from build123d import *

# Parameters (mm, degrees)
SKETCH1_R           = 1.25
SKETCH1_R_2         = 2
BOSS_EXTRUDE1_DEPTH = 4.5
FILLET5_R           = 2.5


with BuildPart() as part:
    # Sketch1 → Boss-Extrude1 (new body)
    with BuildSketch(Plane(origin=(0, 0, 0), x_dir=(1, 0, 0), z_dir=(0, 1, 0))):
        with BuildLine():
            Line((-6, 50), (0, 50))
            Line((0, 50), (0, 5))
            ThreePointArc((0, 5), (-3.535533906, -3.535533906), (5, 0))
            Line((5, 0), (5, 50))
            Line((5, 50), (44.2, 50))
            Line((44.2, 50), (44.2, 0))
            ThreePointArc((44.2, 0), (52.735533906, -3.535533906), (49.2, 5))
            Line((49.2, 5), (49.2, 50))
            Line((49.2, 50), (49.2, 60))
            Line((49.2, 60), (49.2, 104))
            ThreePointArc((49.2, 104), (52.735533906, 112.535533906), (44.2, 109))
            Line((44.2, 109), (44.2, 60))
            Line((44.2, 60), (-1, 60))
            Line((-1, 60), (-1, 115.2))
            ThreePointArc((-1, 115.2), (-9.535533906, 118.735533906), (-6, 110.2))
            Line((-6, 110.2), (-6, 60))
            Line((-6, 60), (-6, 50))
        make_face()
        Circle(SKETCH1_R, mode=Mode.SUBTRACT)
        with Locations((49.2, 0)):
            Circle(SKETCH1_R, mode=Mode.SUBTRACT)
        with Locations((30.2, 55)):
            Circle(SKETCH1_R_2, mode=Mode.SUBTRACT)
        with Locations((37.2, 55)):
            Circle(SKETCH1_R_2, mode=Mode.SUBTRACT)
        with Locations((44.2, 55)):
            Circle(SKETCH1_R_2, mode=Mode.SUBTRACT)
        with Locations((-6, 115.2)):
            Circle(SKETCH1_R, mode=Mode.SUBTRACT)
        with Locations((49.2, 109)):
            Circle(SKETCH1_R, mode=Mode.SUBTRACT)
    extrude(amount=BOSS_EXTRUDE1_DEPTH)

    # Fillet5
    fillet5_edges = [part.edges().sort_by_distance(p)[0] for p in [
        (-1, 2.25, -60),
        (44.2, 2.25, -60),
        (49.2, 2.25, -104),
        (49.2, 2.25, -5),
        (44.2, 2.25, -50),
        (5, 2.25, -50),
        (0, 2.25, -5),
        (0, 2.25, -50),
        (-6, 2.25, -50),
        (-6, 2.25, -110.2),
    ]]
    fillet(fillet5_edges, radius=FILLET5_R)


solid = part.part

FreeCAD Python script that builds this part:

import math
import FreeCAD as App
import Part
import Sketcher
Q = App.Units.Quantity


def edges_at(feature, points):
    """Names of the edges that pass closest to the given points."""
    edges = feature.Shape.Edges
    near = lambda p: min(range(len(edges)), key=lambda i: edges[i].distToShape(Part.Vertex(*p))[0])
    return sorted({f"Edge{near(p) + 1}" for p in points})

doc = App.newDocument("Part")
body = doc.addObject("PartDesign::Body", "Body")

# Sketch on XZ plane
sketch1 = body.newObject("Sketcher::SketchObject", "Sketch")
sketch1.AttachmentSupport = (doc.getObject("XZ_Plane"), [""])
sketch1.MapMode = "FlatFace"
sketch1.addGeometry(Part.LineSegment(App.Vector(-6, -50, 0), App.Vector(0, -50, 0)), False)
sketch1.addGeometry(Part.LineSegment(App.Vector(0, -50, 0), App.Vector(0, -5, 0)), False)
sketch1.addGeometry(Part.ArcOfCircle(Part.Circle(App.Vector(0, 0, 0), App.Vector(0, 0, 1), 5), math.radians(0), math.radians(270)), False)
sketch1.addGeometry(Part.LineSegment(App.Vector(5, 0, 0), App.Vector(5, -50, 0)), False)
sketch1.addGeometry(Part.LineSegment(App.Vector(5, -50, 0), App.Vector(44.2, -50, 0)), False)
sketch1.addGeometry(Part.LineSegment(App.Vector(44.2, -50, 0), App.Vector(44.2, 0, 0)), False)
sketch1.addGeometry(Part.ArcOfCircle(Part.Circle(App.Vector(49.2, 0, 0), App.Vector(0, 0, 1), 5), math.radians(-90), math.radians(180)), False)
sketch1.addGeometry(Part.LineSegment(App.Vector(49.2, -5, 0), App.Vector(49.2, -104, 0)), False)
sketch1.addGeometry(Part.ArcOfCircle(Part.Circle(App.Vector(49.2, -109, 0), App.Vector(0, 0, 1), 5), math.radians(180), math.radians(450)), False)
sketch1.addGeometry(Part.LineSegment(App.Vector(44.2, -109, 0), App.Vector(44.2, -60, 0)), False)
sketch1.addGeometry(Part.LineSegment(App.Vector(44.2, -60, 0), App.Vector(-1, -60, 0)), False)
sketch1.addGeometry(Part.LineSegment(App.Vector(-1, -60, 0), App.Vector(-1, -115.2, 0)), False)
sketch1.addGeometry(Part.ArcOfCircle(Part.Circle(App.Vector(-6, -115.2, 0), App.Vector(0, 0, 1), 5), math.radians(90), math.radians(360)), False)
sketch1.addGeometry(Part.LineSegment(App.Vector(-6, -110.2, 0), App.Vector(-6, -50, 0)), False)
sketch1.addGeometry(Part.Circle(App.Vector(0, 0, 0), App.Vector(0, 0, 1), 1.2), False)
sketch1.addGeometry(Part.Circle(App.Vector(49.2, 0, 0), App.Vector(0, 0, 1), 1.2), False)
sketch1.addGeometry(Part.Circle(App.Vector(30.2, -55, 0), App.Vector(0, 0, 1), 2), False)
sketch1.addGeometry(Part.Circle(App.Vector(37.2, -55, 0), App.Vector(0, 0, 1), 2), False)
sketch1.addGeometry(Part.Circle(App.Vector(44.2, -55, 0), App.Vector(0, 0, 1), 2), False)
sketch1.addGeometry(Part.Circle(App.Vector(-6, -115.2, 0), App.Vector(0, 0, 1), 1.2), False)
sketch1.addGeometry(Part.Circle(App.Vector(49.2, -109, 0), App.Vector(0, 0, 1), 1.2), False)
sketch1.addConstraint(Sketcher.Constraint("Coincident", 0, 2, 1, 1))
sketch1.addConstraint(Sketcher.Constraint("Coincident", 1, 2, 2, 2))
sketch1.addConstraint(Sketcher.Constraint("Tangent", 2, 1, 3, 1))
sketch1.addConstraint(Sketcher.Constraint("Coincident", 3, 2, 4, 1))
sketch1.addConstraint(Sketcher.Constraint("Coincident", 4, 2, 5, 1))
sketch1.addConstraint(Sketcher.Constraint("Tangent", 5, 2, 6, 2))
sketch1.addConstraint(Sketcher.Constraint("Coincident", 6, 1, 7, 1))
sketch1.addConstraint(Sketcher.Constraint("Coincident", 7, 2, 8, 2))
sketch1.addConstraint(Sketcher.Constraint("Tangent", 8, 1, 9, 1))
sketch1.addConstraint(Sketcher.Constraint("Coincident", 9, 2, 10, 1))
sketch1.addConstraint(Sketcher.Constraint("Coincident", 10, 2, 11, 1))
sketch1.addConstraint(Sketcher.Constraint("Tangent", 11, 2, 12, 2))
sketch1.addConstraint(Sketcher.Constraint("Coincident", 12, 1, 13, 1))
sketch1.addConstraint(Sketcher.Constraint("Coincident", 13, 2, 0, 1))
sketch1.addConstraint(Sketcher.Constraint("Horizontal", 0))
sketch1.addConstraint(Sketcher.Constraint("Vertical", 1))
sketch1.addConstraint(Sketcher.Constraint("Vertical", 3))
sketch1.addConstraint(Sketcher.Constraint("Horizontal", 4))
sketch1.addConstraint(Sketcher.Constraint("Vertical", 5))
sketch1.addConstraint(Sketcher.Constraint("Vertical", 7))
sketch1.addConstraint(Sketcher.Constraint("Vertical", 9))
sketch1.addConstraint(Sketcher.Constraint("Horizontal", 10))
sketch1.addConstraint(Sketcher.Constraint("Vertical", 11))
sketch1.addConstraint(Sketcher.Constraint("Vertical", 13))
sketch1.addConstraint(Sketcher.Constraint("Coincident", 2, 3, -1, 1))
sketch1.addConstraint(Sketcher.Constraint("Coincident", 14, 3, -1, 1))
sketch1.addConstraint(Sketcher.Constraint("Coincident", 15, 3, 6, 3))
sketch1.addConstraint(Sketcher.Constraint("Coincident", 19, 3, 12, 3))
sketch1.addConstraint(Sketcher.Constraint("Coincident", 20, 3, 8, 3))
sketch1.addConstraint(Sketcher.Constraint("Equal", 2, 6))
sketch1.addConstraint(Sketcher.Constraint("Equal", 6, 8))
sketch1.addConstraint(Sketcher.Constraint("Equal", 8, 12))
sketch1.addConstraint(Sketcher.Constraint("Equal", 14, 15))
sketch1.addConstraint(Sketcher.Constraint("Equal", 16, 17))
sketch1.addConstraint(Sketcher.Constraint("Equal", 17, 18))
sketch1.addConstraint(Sketcher.Constraint("Equal", 15, 19))
sketch1.addConstraint(Sketcher.Constraint("Equal", 19, 20))
sketch1.addConstraint(Sketcher.Constraint("PointOnObject", 6, 3, -1))
sketch1.addConstraint(Sketcher.Constraint("PointOnObject", 0, 2, -2))
sketch1.addConstraint(Sketcher.Constraint("Horizontal", 16, 3, 17, 3))
sketch1.addConstraint(Sketcher.Constraint("Horizontal", 17, 3, 18, 3))
sketch1.addConstraint(Sketcher.Constraint("Horizontal", 0, 2, 3, 2))
sketch1.addConstraint(Sketcher.Constraint("Vertical", 6, 3, 8, 3))
sketch1.addConstraint(Sketcher.Constraint("Vertical", 18, 3, 4, 2))
sketch1.addConstraint(Sketcher.Constraint("Vertical", 20, 3, 6, 1))
sketch1.addConstraint(Sketcher.Constraint("Vertical", 19, 3, 12, 1))
sketch1.addConstraint(Sketcher.Constraint("Diameter", 16, Q("4 mm")))
sketch1.addConstraint(Sketcher.Constraint("Radius", 2, Q("5 mm")))
sketch1.addConstraint(Sketcher.Constraint("Diameter", 14, Q("2.5 mm")))
sketch1.addConstraint(Sketcher.Constraint("DistanceX", 0, 1, 0, 2, Q("6 mm")))
sketch1.addConstraint(Sketcher.Constraint("DistanceY", 1, 1, 1, 2, Q("45 mm")))
sketch1.addConstraint(Sketcher.Constraint("DistanceY", 7, 2, 7, 1, Q("99 mm")))
sketch1.addConstraint(Sketcher.Constraint("DistanceY", 9, 1, 9, 2, Q("49 mm")))
sketch1.addConstraint(Sketcher.Constraint("DistanceX", 4, 1, 4, 2, Q("39.2 mm")))
sketch1.addConstraint(Sketcher.Constraint("DistanceY", 11, 2, 11, 1, Q("55.2 mm")))
sketch1.addConstraint(Sketcher.Constraint("DistanceY", 16, 3, -1, 1, Q("55 mm")))
sketch1.addConstraint(Sketcher.Constraint("DistanceX", 16, 3, 8, 3, Q("19 mm")))
sketch1.addConstraint(Sketcher.Constraint("DistanceX", 16, 3, 17, 3, Q("7 mm")))
pad1 = body.newObject("PartDesign::Pad", "Pad")
pad1.Profile = sketch1
pad1.Length = 4.5
pad1.Reversed = True
doc.recompute()

fillet = body.newObject("PartDesign::Fillet", "Fillet")
fillet.Base = (pad1, edges_at(pad1, [
    (-1, 2.25, -60),
    (44.2, 2.25, -60),
    (49.2, 2.25, -104),
    (49.2, 2.25, -5),
    (44.2, 2.25, -50),
    (5, 2.25, -50),
    (0, 2.25, -5),
    (0, 2.25, -50),
    (-6, 2.25, -50),
    (-6, 2.25, -110.2),
]))
fillet.Radius = 2.5

doc.recompute()
